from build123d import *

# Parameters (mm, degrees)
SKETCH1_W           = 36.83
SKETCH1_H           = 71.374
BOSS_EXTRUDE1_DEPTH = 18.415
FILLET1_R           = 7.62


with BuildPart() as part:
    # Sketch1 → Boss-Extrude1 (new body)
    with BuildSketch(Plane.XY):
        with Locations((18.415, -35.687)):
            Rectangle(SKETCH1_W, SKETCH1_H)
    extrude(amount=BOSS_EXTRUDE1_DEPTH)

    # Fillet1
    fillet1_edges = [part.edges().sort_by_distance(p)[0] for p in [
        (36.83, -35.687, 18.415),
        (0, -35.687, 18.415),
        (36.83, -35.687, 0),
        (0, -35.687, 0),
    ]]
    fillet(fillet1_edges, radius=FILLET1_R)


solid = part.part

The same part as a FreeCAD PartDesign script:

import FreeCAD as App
import Part
import Sketcher
from FreeCAD import Vector
Q = App.Units.Quantity


def edges_at(feature, points):
    """Names of the edges that pass closest to the given points."""
    edges = feature.Shape.Edges
    near = lambda p: min(range(len(edges)), key=lambda i: edges[i].distToShape(Part.Vertex(*p))[0])
    return sorted({f"Edge{near(p) + 1}" for p in points})


def add_polygon(sketch, points):
    """Adds a closed chain of lines whose ends are joined by coincident constraints."""
    first, n = sketch.GeometryCount, len(points)
    for a, b in zip(points, points[1:] + points[:1]):
        sketch.addGeometry(Part.LineSegment(App.Vector(*a, 0), App.Vector(*b, 0)), False)
    for i in range(n):
        sketch.addConstraint(Sketcher.Constraint("Coincident", first + i, 2, first + (i + 1) % n, 1))

doc = App.newDocument("Part")
body = doc.addObject("PartDesign::Body", "Body")

# Sketch on XY plane
sketch1 = doc.addObject("Sketcher::SketchObject", "Sketch")
body.addObject(sketch1)
sketch1.AttachmentSupport = (doc.XY_Plane, [""])
sketch1.MapMode = "FlatFace"
add_polygon(sketch1, [(0, 0), (0, -71), (37, -71), (37, 0)])  # lines 0-3
sketch1.addConstraint([
    Sketcher.Constraint("Vertical", 0),
    Sketcher.Constraint("Horizontal", 1),
    Sketcher.Constraint("Vertical", 2),
    Sketcher.Constraint("Horizontal", 3),
    Sketcher.Constraint("Coincident", 3, 2, -1, 1),
    Sketcher.Constraint("DistanceX", 1, 1, 1, 2, Q("1.45 in")),
    Sketcher.Constraint("DistanceY", 0, 2, 0, 1, Q("2.81 in")),
])
pad1 = doc.addObject("PartDesign::Pad", "Pad")
body.addObject(pad1)
pad1.Profile = sketch1
pad1.Length = Q("0.725 in")
doc.recompute()

fillet = doc.addObject("PartDesign::Fillet", "Fillet")
body.addObject(fillet)
fillet.Base = (pad1, edges_at(pad1, [
    (36.83, -35.687, 18.415),
    (0, -35.687, 18.415),
    (36.83, -35.687, 0),
    (0, -35.687, 0),
]))
fillet.Radius = Q("0.3 in")

doc.recompute()
